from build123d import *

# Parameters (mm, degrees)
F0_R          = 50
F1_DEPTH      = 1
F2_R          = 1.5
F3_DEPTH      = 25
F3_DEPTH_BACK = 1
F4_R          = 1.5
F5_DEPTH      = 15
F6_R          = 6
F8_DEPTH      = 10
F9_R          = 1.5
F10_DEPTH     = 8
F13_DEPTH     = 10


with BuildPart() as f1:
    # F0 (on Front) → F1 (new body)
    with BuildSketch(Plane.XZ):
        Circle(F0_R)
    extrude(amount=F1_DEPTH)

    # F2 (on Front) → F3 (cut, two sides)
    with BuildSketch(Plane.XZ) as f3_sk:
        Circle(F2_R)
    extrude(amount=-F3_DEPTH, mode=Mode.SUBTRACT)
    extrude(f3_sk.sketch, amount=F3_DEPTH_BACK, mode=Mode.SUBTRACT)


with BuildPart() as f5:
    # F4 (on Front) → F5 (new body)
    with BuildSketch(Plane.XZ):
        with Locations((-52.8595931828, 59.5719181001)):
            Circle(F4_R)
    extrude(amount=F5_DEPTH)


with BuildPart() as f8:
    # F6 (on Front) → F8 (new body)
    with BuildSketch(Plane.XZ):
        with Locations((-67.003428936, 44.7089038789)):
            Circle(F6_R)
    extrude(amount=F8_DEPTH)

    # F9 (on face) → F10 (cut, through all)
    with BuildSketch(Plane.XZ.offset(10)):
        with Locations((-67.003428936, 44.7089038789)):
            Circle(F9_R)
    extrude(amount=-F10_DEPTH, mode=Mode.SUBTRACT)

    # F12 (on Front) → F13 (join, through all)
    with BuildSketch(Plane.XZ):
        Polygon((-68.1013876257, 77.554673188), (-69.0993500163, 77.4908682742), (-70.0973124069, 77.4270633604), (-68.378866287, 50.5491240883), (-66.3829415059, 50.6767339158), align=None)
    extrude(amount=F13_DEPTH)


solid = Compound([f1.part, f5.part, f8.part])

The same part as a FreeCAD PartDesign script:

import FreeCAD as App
import Part
import Sketcher


def add_polygon(sketch, points):
    """Adds a closed chain of lines whose ends are joined by coincident constraints."""
    first, n = sketch.GeometryCount, len(points)
    for a, b in zip(points, points[1:] + points[:1]):
        sketch.addGeometry(Part.LineSegment(App.Vector(*a, 0), App.Vector(*b, 0)), False)
    for i in range(n):
        sketch.addConstraint(Sketcher.Constraint("Coincident", first + i, 2, first + (i + 1) % n, 1))

doc = App.newDocument("Part")
params = doc.addObject("Spreadsheet::Sheet", "Params")
for row, (alias, value) in enumerate([
    ("sketch1_diameter", "100 mm"),
    ("pad1_length", "1 mm"),
    ("sketch2_diameter", "3 mm"),
    ("sketch3_diameter", "3 mm"),
    ("pad2_length", "15 mm"),
    ("sketch4_diameter", "12 mm"),
    ("pad3_length", "10 mm"),
    ("sketch5_diameter", "3 mm"),
    ("pocket2_length", "8 mm"),
    ("sketch6_length", "2 mm"),
    ("pad4_length", "10 mm"),
], start=1):
    params.set(f"A{row}", alias)
    params.set(f"B{row}", "=" + value)
    params.setAlias(f"B{row}", alias)

body = doc.addObject("PartDesign::Body", "Body")

sketch1 = body.newObject("Sketcher::SketchObject", "Sketch")
sketch1.AttachmentSupport = (doc.getObject("XZ_Plane"), [""])
sketch1.MapMode = "FlatFace"
sketch1.addGeometry(Part.Circle(App.Vector(0, 0, 0), App.Vector(0, 0, 1), 50), False)
sketch1.addConstraint([
    Sketcher.Constraint("Coincident", 0, 3, -1, 1),
    Sketcher.Constraint("Diameter", 0, 100.0),
])
sketch1.setExpression("Constraints[1]", "Params.sketch1_diameter")
pad1 = body.newObject("PartDesign::Pad", "Pad")
pad1.Profile = sketch1
pad1.setExpression("Length", "Params.pad1_length")

sketch2 = body.newObject("Sketcher::SketchObject", "Sketch001")
sketch2.AttachmentSupport = (doc.getObject("XZ_Plane"), [""])
sketch2.MapMode = "FlatFace"
sketch2.addGeometry(Part.Circle(App.Vector(0, 0, 0), App.Vector(0, 0, 1), 1.5), False)
sketch2.addConstraint([
    Sketcher.Constraint("Coincident", 0, 3, -1, 1),
    Sketcher.Constraint("Diameter", 0, 3.0),
])
sketch2.setExpression("Constraints[1]", "Params.sketch2_diameter")
pocket1 = body.newObject("PartDesign::Pocket", "Pocket")
pocket1.Profile = sketch2
pocket1.Type = "ThroughAll"
pocket1.Midplane = True
body2 = doc.addObject("PartDesign::Body", "Body001")

sketch3 = body2.newObject("Sketcher::SketchObject", "Sketch002")
sketch3.AttachmentSupport = (doc.getObject("XZ_Plane001"), [""])
sketch3.MapMode = "FlatFace"
sketch3.addGeometry(Part.Circle(App.Vector(-52.9, 59.6, 0), App.Vector(0, 0, 1), 1.5), False)
sketch3.addConstraint([
    Sketcher.Constraint("Diameter", 0, 3.0),
    Sketcher.Constraint("DistanceY", -1, 1, 0, 3, 59.571918),
    Sketcher.Constraint("DistanceX", 0, 3, -1, 1, 52.859593),
])
sketch3.setExpression("Constraints[0]", "Params.sketch3_diameter")
pad2 = body2.newObject("PartDesign::Pad", "Pad001")
pad2.Profile = sketch3
pad2.setExpression("Length", "Params.pad2_length")
body3 = doc.addObject("PartDesign::Body", "Body002")

sketch4 = body3.newObject("Sketcher::SketchObject", "Sketch003")
sketch4.AttachmentSupport = (doc.getObject("XZ_Plane002"), [""])
sketch4.MapMode = "FlatFace"
sketch4.addGeometry(Part.Circle(App.Vector(-67, 45, 0), App.Vector(0, 0, 1), 6), False)
sketch4.addConstraint([
    Sketcher.Constraint("Diameter", 0, 12.0),
    Sketcher.Constraint("DistanceX", 0, 3, -1, 1, 67.003429),
    Sketcher.Constraint("DistanceY", -1, 1, 0, 3, 44.708904),
])
sketch4.setExpression("Constraints[0]", "Params.sketch4_diameter")
pad3 = body3.newObject("PartDesign::Pad", "Pad002")
pad3.Profile = sketch4
pad3.setExpression("Length", "Params.pad3_length")

sketch5 = body3.newObject("Sketcher::SketchObject", "Sketch004")
sketch5.AttachmentSupport = (doc.getObject("XZ_Plane002"), [""])
sketch5.MapMode = "FlatFace"
sketch5.AttachmentOffset = App.Placement(App.Vector(0, 0, 10), App.Rotation())
sketch5.addGeometry(Part.Circle(App.Vector(-67, 44.7, 0), App.Vector(0, 0, 1), 1.5), False)
sketch5.addConstraint([
    Sketcher.Constraint("Diameter", 0, 3.0),
    Sketcher.Constraint("DistanceX", 0, 3, -1, 1, 67.003429),
    Sketcher.Constraint("DistanceY", -1, 1, 0, 3, 44.708904),
])
sketch5.setExpression("Constraints[0]", "Params.sketch5_diameter")
pocket2 = body3.newObject("PartDesign::Pocket", "Pocket001")
pocket2.Profile = sketch5
pocket2.setExpression("Length", "Params.pocket2_length")

sketch6 = body3.newObject("Sketcher::SketchObject", "Sketch005")
sketch6.AttachmentSupport = (doc.getObject("XZ_Plane002"), [""])
sketch6.MapMode = "FlatFace"
add_polygon(sketch6, [(-68.1, 77.6), (-70.1, 77.4), (-68.4, 50.5), (-66.4, 50.7)])
sketch6.addConstraint([
    Sketcher.Constraint("Perpendicular", 0, 1),
    Sketcher.Constraint("Perpendicular", 1, 2),
    Sketcher.Constraint("Perpendicular", 2, 3),
    Sketcher.Constraint("Distance", 0, 2.0),
    Sketcher.Constraint("DistanceX", 2, 2, -1, 1, 66.382942),
    Sketcher.Constraint("DistanceY", 1, 2, 0, 2, 26.877939),
    Sketcher.Constraint("DistanceY", 1, 2, 2, 2, 0.12761),
    Sketcher.Constraint("DistanceY", -1, 1, 0, 2, 77.427063),
])
sketch6.setExpression("Constraints[7]", "Params.sketch6_length")
pad4 = body3.newObject("PartDesign::Pad", "Pad003")
pad4.Profile = sketch6
pad4.setExpression("Length", "Params.pad4_length")

doc.recompute()
